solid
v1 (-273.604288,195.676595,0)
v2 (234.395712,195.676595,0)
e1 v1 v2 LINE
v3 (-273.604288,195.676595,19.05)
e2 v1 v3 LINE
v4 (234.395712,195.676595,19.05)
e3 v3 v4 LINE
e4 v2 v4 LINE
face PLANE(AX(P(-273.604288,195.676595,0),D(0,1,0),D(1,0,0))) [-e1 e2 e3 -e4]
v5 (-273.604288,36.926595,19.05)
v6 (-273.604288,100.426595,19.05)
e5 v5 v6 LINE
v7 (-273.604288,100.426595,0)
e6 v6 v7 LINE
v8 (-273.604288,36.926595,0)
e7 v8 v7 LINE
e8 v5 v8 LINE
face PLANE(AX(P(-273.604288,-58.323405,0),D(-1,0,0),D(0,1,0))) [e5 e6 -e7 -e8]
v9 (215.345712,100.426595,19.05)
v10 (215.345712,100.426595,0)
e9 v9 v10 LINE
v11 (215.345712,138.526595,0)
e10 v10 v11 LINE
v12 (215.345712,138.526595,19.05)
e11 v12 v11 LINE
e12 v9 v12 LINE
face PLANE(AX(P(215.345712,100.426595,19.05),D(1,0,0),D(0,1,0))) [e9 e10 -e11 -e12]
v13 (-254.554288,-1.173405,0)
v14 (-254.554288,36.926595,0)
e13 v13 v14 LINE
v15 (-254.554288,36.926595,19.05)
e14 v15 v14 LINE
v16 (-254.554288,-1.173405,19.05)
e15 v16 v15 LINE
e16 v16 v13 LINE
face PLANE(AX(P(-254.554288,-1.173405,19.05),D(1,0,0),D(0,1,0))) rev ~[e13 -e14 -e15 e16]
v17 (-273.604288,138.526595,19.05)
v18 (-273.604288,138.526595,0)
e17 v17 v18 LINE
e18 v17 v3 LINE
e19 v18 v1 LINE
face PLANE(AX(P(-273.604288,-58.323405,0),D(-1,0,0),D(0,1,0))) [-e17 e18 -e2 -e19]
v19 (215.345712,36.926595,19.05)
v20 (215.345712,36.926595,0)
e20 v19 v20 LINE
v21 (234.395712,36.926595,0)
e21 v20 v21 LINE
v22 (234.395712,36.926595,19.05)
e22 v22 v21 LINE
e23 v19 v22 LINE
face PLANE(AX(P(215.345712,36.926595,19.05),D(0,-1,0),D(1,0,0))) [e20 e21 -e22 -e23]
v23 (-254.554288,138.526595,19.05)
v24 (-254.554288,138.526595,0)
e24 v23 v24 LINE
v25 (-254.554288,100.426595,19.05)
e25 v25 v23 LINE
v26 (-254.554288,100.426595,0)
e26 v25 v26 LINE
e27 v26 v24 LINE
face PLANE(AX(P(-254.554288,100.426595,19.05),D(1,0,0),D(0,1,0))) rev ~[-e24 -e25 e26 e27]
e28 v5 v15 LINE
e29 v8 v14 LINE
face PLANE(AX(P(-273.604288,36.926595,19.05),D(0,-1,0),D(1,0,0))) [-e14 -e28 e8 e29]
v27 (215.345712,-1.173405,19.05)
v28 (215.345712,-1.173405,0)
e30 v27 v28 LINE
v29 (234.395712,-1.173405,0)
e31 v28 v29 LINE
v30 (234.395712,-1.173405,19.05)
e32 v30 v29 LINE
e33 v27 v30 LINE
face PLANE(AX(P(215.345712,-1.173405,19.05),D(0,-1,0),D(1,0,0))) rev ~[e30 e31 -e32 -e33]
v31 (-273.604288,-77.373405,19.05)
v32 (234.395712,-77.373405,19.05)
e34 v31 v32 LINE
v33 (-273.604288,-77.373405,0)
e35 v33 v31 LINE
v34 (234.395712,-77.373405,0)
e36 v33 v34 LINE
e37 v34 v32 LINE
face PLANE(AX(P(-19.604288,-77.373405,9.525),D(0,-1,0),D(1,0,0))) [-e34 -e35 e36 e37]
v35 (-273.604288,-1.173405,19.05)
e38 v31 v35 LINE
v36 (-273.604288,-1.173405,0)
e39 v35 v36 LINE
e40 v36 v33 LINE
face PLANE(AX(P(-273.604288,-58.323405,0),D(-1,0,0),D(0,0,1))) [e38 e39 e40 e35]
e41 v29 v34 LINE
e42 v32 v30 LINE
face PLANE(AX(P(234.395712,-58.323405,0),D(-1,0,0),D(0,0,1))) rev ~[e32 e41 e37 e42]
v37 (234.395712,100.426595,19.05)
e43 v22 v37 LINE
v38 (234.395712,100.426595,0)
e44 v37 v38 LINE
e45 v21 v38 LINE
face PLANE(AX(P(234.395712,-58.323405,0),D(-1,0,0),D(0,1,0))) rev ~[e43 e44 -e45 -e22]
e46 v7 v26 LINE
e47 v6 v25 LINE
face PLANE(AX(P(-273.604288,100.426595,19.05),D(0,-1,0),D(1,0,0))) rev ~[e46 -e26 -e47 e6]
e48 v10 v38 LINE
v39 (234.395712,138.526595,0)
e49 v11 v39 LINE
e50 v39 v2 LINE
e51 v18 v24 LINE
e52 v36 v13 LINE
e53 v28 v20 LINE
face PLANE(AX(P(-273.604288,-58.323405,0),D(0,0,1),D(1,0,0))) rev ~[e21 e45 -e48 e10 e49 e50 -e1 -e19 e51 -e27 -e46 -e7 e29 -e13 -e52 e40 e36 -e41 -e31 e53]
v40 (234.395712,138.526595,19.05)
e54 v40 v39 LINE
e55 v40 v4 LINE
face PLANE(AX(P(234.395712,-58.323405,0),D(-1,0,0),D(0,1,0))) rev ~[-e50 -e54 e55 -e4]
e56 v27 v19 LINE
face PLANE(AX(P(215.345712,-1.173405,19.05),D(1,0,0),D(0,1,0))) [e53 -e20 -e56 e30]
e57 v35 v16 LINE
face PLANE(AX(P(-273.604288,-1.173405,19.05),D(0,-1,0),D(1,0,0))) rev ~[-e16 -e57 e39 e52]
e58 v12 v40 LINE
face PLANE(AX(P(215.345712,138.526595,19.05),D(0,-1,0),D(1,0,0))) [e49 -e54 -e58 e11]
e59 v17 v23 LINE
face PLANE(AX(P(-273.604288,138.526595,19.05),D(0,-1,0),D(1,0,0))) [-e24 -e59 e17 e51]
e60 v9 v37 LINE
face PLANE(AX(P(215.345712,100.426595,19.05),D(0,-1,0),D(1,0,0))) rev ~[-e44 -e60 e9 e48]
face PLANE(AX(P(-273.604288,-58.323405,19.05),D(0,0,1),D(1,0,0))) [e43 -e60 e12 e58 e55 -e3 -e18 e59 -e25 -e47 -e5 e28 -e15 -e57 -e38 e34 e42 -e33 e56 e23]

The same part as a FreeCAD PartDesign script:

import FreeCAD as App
import Part
import Sketcher
Q = App.Units.Quantity


def add_polygon(sketch, points):
    """Adds a closed chain of lines whose ends are joined by coincident constraints."""
    first, n = sketch.GeometryCount, len(points)
    for a, b in zip(points, points[1:] + points[:1]):
        sketch.addGeometry(Part.LineSegment(App.Vector(*a, 0), App.Vector(*b, 0)), False)
    for i in range(n):
        sketch.addConstraint(Sketcher.Constraint("Coincident", first + i, 2, first + (i + 1) % n, 1))

doc = App.newDocument("Part")
params = doc.addObject("Spreadsheet::Sheet", "Params")
for row, (alias, value) in enumerate([
    ("sketch1_width", "20 in"),
    ("sketch1_height", "10 in"),
    ("pad1_length", "0.75 in"),
    ("sketch2_height", "1.5 in"),
    ("sketch2_width", "0.75 in"),
    ("pocket1_length", "0.75 in"),
    ("sketch3_width", "20 in"),
    ("sketch3_height", "0.75 in"),
    ("pad2_length", "0.75 in"),
], start=1):
    params.set(f"A{row}", alias)
    params.set(f"B{row}", "=" + value)
    params.setAlias(f"B{row}", alias)

body = doc.addObject("PartDesign::Body", "Body")

# Sketch on XY plane
sketch1 = body.newObject("Sketcher::SketchObject", "Sketch")
sketch1.AttachmentSupport = (doc.getObject("XY_Plane"), [""])
sketch1.MapMode = "FlatFace"
add_polygon(sketch1, [(-274, 196), (-274, -58), (234, -58), (234, 196)])  # lines 0-3
sketch1.addConstraint(Sketcher.Constraint("Vertical", 0))
sketch1.addConstraint(Sketcher.Constraint("Horizontal", 1))
sketch1.addConstraint(Sketcher.Constraint("Vertical", 2))
sketch1.addConstraint(Sketcher.Constraint("Horizontal", 3))
sketch1.addConstraint(Sketcher.Constraint("DistanceX", 1, 1, 1, 2, Q("20 in")))
sketch1.addConstraint(Sketcher.Constraint("DistanceY", 0, 2, 0, 1, Q("10 in")))
sketch1.addConstraint(Sketcher.Constraint("DistanceX", 0, 2, -1, 1, Q("273.604288 mm")))
sketch1.addConstraint(Sketcher.Constraint("DistanceY", 0, 2, -1, 1, Q("58.323405 mm")))
sketch1.setExpression("Constraints[8]", "Params.sketch1_width")
sketch1.setExpression("Constraints[9]", "Params.sketch1_height")
pad1 = body.newObject("PartDesign::Pad", "Pad")
pad1.Profile = sketch1
pad1.setExpression("Length", "Params.pad1_length")

# Sketch on XY plane
sketch2 = body.newObject("Sketcher::SketchObject", "Sketch001")
sketch2.AttachmentSupport = (doc.getObject("XY_Plane"), [""])
sketch2.MapMode = "FlatFace"
sketch2.AttachmentOffset = App.Placement(App.Vector(0, 0, 0.75 * 25.4), App.Rotation())
add_polygon(sketch2, [(-274, 139), (-274, 100), (-255, 100), (-255, 139)])  # lines 0-3
add_polygon(sketch2, [(-274, 37), (-274, -1), (-255, -1), (-255, 37)])  # lines 4-7
add_polygon(sketch2, [(215, 139), (215, 100), (234, 100), (234, 139)])  # lines 8-11
add_polygon(sketch2, [(215, 37), (215, -1), (234, -1), (234, 37)])  # lines 12-15
sketch2.addConstraint(Sketcher.Constraint("Vertical", 0))
sketch2.addConstraint(Sketcher.Constraint("Horizontal", 1))
sketch2.addConstraint(Sketcher.Constraint("Vertical", 2))
sketch2.addConstraint(Sketcher.Constraint("Horizontal", 3))
sketch2.addConstraint(Sketcher.Constraint("Vertical", 4))
sketch2.addConstraint(Sketcher.Constraint("Horizontal", 5))
sketch2.addConstraint(Sketcher.Constraint("Vertical", 6))
sketch2.addConstraint(Sketcher.Constraint("Horizontal", 7))
sketch2.addConstraint(Sketcher.Constraint("Vertical", 8))
sketch2.addConstraint(Sketcher.Constraint("Horizontal", 9))
sketch2.addConstraint(Sketcher.Constraint("Vertical", 10))
sketch2.addConstraint(Sketcher.Constraint("Horizontal", 11))
sketch2.addConstraint(Sketcher.Constraint("Vertical", 12))
sketch2.addConstraint(Sketcher.Constraint("Horizontal", 13))
sketch2.addConstraint(Sketcher.Constraint("Vertical", 14))
sketch2.addConstraint(Sketcher.Constraint("Horizontal", 15))
sketch2.addConstraint(Sketcher.Constraint("Horizontal", 1, 2, 8, 2))
sketch2.addConstraint(Sketcher.Constraint("Horizontal", 3, 2, 10, 2))
sketch2.addConstraint(Sketcher.Constraint("Horizontal", 5, 2, 12, 2))
sketch2.addConstraint(Sketcher.Constraint("Horizontal", 7, 2, 14, 2))
sketch2.addConstraint(Sketcher.Constraint("Vertical", 3, 2, 4, 2))
sketch2.addConstraint(Sketcher.Constraint("Vertical", 2, 2, 5, 2))
sketch2.addConstraint(Sketcher.Constraint("Vertical", 11, 2, 12, 2))
sketch2.addConstraint(Sketcher.Constraint("Vertical", 10, 2, 13, 2))
sketch2.addConstraint(Sketcher.Constraint("Equal", 7, 9))
sketch2.addConstraint(Sketcher.Constraint("Equal", 2, 4))
sketch2.addConstraint(Sketcher.Constraint("DistanceY", 0, 2, 0, 1, Q("1.5 in")))
sketch2.addConstraint(Sketcher.Constraint("DistanceY", 4, 2, 0, 2, Q("4 in")))
sketch2.addConstraint(Sketcher.Constraint("DistanceX", 1, 1, 1, 2, Q("0.75 in")))
sketch2.addConstraint(Sketcher.Constraint("DistanceX", 1, 2, 8, 2, Q("18.5 in")))
sketch2.addConstraint(Sketcher.Constraint("DistanceX", 0, 2, -1, 1, Q("273.604288 mm")))
sketch2.addConstraint(Sketcher.Constraint("DistanceY", -1, 1, 0, 2, Q("100.426595 mm")))
sketch2.setExpression("Constraints[42]", "Params.sketch2_height")
sketch2.setExpression("Constraints[44]", "Params.sketch2_width")
pocket1 = body.newObject("PartDesign::Pocket", "Pocket")
pocket1.Profile = sketch2
pocket1.setExpression("Length", "Params.pocket1_length")

# Sketch on XZ plane
sketch3 = body.newObject("Sketcher::SketchObject", "Sketch002")
sketch3.AttachmentSupport = (doc.getObject("XZ_Plane"), [""])
sketch3.MapMode = "FlatFace"
sketch3.AttachmentOffset = App.Placement(App.Vector(0, 0, 58.323405), App.Rotation())
add_polygon(sketch3, [(-274, 19), (-274, 0), (234, 0), (234, 19)])  # lines 0-3
sketch3.addConstraint(Sketcher.Constraint("Vertical", 0))
sketch3.addConstraint(Sketcher.Constraint("Horizontal", 1))
sketch3.addConstraint(Sketcher.Constraint("Vertical", 2))
sketch3.addConstraint(Sketcher.Constraint("Horizontal", 3))
sketch3.addConstraint(Sketcher.Constraint("PointOnObject", 0, 2, -1))
sketch3.addConstraint(Sketcher.Constraint("DistanceX", 1, 1, 1, 2, Q("20 in")))
sketch3.addConstraint(Sketcher.Constraint("DistanceY", 0, 2, 0, 1, Q("0.75 in")))
sketch3.addConstraint(Sketcher.Constraint("DistanceX", 0, 2, -1, 1, Q("273.604288 mm")))
sketch3.setExpression("Constraints[9]", "Params.sketch3_width")
sketch3.setExpression("Constraints[10]", "Params.sketch3_height")
pad2 = body.newObject("PartDesign::Pad", "Pad001")
pad2.Profile = sketch3
pad2.setExpression("Length", "Params.pad2_length")

doc.recompute()
